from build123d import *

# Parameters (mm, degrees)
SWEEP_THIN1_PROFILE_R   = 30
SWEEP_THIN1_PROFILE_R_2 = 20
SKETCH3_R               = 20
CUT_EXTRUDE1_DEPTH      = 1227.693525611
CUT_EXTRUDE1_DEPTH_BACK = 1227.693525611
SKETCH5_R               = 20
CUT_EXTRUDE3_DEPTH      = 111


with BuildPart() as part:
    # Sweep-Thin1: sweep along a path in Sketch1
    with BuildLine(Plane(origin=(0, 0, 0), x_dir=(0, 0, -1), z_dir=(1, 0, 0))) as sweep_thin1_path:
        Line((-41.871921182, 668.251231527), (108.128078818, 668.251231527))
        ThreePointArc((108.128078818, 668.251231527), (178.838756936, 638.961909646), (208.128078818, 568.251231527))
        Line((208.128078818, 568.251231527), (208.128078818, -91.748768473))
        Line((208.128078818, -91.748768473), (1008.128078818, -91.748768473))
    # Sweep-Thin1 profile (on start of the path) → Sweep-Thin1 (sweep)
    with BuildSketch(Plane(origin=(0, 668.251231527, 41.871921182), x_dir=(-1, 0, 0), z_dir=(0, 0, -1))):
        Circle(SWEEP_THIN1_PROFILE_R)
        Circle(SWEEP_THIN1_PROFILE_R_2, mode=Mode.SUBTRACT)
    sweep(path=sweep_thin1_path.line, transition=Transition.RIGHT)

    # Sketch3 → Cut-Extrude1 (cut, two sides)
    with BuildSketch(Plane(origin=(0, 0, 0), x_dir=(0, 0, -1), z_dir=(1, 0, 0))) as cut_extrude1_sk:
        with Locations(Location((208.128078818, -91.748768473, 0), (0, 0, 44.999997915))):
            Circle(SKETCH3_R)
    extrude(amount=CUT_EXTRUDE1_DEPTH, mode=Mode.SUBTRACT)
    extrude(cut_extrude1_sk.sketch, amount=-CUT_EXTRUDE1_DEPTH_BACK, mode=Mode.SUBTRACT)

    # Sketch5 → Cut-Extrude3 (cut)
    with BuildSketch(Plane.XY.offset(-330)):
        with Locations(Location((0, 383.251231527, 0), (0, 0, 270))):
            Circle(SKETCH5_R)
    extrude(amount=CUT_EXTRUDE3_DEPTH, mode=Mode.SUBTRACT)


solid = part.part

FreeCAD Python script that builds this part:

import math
import FreeCAD as App
import Part
import Sketcher
Q = App.Units.Quantity

doc = App.newDocument("Part")
body = doc.addObject("PartDesign::Body", "Body")

# Sketch on XY plane
sketch1 = doc.addObject("Sketcher::SketchObject", "Sketch")
body.addObject(sketch1)
sketch1.AttachmentSupport = (doc.XY_Plane, [""])
sketch1.MapMode = "FlatFace"
sketch1.AttachmentOffset = App.Placement(App.Vector(0, 0, 41.871921), App.Rotation())
sketch1.addGeometry([
    Part.Circle(App.Vector(0, 668, 0), App.Vector(0, 0, 1), 30),
    Part.Circle(App.Vector(0, 668, 0), App.Vector(0, 0, 1), 20),
], False)
sketch1.addConstraint([
    Sketcher.Constraint("Coincident", 1, 3, 0, 3),
    Sketcher.Constraint("PointOnObject", 0, 3, -2),
    Sketcher.Constraint("Diameter", 0, Q("60 mm")),
    Sketcher.Constraint("Diameter", 1, Q("40 mm")),
    Sketcher.Constraint("DistanceY", -1, 1, 0, 3, Q("668.251232 mm")),
])

# Sketch on YZ plane
sketch2 = doc.addObject("Sketcher::SketchObject", "Sketch001")
body.addObject(sketch2)
sketch2.AttachmentSupport = (doc.YZ_Plane, [""])
sketch2.MapMode = "FlatFace"
sketch2.addGeometry([
    Part.LineSegment(App.Vector(668, 42, 0), App.Vector(668, -108, 0)),
    Part.ArcOfCircle(Part.Circle(App.Vector(568, -108, 0), App.Vector(0, 0, 1), 100), math.radians(-90), math.radians(0)),
    Part.LineSegment(App.Vector(568, -208, 0), App.Vector(-92, -208, 0)),
    Part.LineSegment(App.Vector(-92, -208, 0), App.Vector(-92, -1008, 0)),
], False)
sketch2.addConstraint([
    Sketcher.Constraint("Tangent", 0, 2, 1, 2),
    Sketcher.Constraint("Tangent", 1, 1, 2, 1),
    Sketcher.Constraint("Coincident", 2, 2, 3, 1),
    Sketcher.Constraint("Vertical", 0),
    Sketcher.Constraint("Horizontal", 2),
    Sketcher.Constraint("Vertical", 3),
    Sketcher.Constraint("Radius", 1, Q("100 mm")),
    Sketcher.Constraint("DistanceX", 2, 2, 2, 1, Q("660 mm")),
    Sketcher.Constraint("DistanceY", 0, 2, 0, 1, Q("150 mm")),
    Sketcher.Constraint("DistanceY", 3, 2, 3, 1, Q("800 mm")),
    Sketcher.Constraint("DistanceX", -1, 1, 1, 3, Q("568.251232 mm")),
    Sketcher.Constraint("DistanceY", 1, 3, -1, 1, Q("108.128079 mm")),
])
doc.recompute()

additivepipe = doc.addObject("PartDesign::AdditivePipe", "AdditivePipe")
body.addObject(additivepipe)
additivepipe.Profile = sketch1
additivepipe.Spine = (sketch2, ["Edge1", "Edge2", "Edge3", "Edge4"])
additivepipe.Transition = "Right corner"

# Sketch on YZ plane
sketch3 = doc.addObject("Sketcher::SketchObject", "Sketch002")
body.addObject(sketch3)
sketch3.AttachmentSupport = (doc.YZ_Plane, [""])
sketch3.MapMode = "FlatFace"
sketch3.addGeometry(Part.Circle(App.Vector(-92, -208, 0), App.Vector(0, 0, 1), 20), False)
sketch3.addConstraint([
    Sketcher.Constraint("Diameter", 0, Q("40 mm")),
    Sketcher.Constraint("DistanceX", 0, 3, -1, 1, Q("91.748768 mm")),
    Sketcher.Constraint("DistanceY", 0, 3, -1, 1, Q("208.128079 mm")),
])
pocket1 = doc.addObject("PartDesign::Pocket", "Pocket")
body.addObject(pocket1)
pocket1.Profile = sketch3
pocket1.Type = "ThroughAll"
pocket1.Midplane = True

# Sketch on XY plane
sketch4 = doc.addObject("Sketcher::SketchObject", "Sketch003")
body.addObject(sketch4)
sketch4.AttachmentSupport = (doc.XY_Plane, [""])
sketch4.MapMode = "FlatFace"
sketch4.AttachmentOffset = App.Placement(App.Vector(0, 0, -330), App.Rotation())
sketch4.addGeometry(Part.Circle(App.Vector(0, 383, 0), App.Vector(0, 0, 1), 20), False)
sketch4.addConstraint([
    Sketcher.Constraint("PointOnObject", 0, 3, -2),
    Sketcher.Constraint("Diameter", 0, Q("40 mm")),
    Sketcher.Constraint("DistanceY", -1, 1, 0, 3, Q("383.251232 mm")),
])
pocket2 = doc.addObject("PartDesign::Pocket", "Pocket001")
body.addObject(pocket2)
pocket2.Profile = sketch4
pocket2.Length = 111
pocket2.Reversed = True

doc.recompute()
